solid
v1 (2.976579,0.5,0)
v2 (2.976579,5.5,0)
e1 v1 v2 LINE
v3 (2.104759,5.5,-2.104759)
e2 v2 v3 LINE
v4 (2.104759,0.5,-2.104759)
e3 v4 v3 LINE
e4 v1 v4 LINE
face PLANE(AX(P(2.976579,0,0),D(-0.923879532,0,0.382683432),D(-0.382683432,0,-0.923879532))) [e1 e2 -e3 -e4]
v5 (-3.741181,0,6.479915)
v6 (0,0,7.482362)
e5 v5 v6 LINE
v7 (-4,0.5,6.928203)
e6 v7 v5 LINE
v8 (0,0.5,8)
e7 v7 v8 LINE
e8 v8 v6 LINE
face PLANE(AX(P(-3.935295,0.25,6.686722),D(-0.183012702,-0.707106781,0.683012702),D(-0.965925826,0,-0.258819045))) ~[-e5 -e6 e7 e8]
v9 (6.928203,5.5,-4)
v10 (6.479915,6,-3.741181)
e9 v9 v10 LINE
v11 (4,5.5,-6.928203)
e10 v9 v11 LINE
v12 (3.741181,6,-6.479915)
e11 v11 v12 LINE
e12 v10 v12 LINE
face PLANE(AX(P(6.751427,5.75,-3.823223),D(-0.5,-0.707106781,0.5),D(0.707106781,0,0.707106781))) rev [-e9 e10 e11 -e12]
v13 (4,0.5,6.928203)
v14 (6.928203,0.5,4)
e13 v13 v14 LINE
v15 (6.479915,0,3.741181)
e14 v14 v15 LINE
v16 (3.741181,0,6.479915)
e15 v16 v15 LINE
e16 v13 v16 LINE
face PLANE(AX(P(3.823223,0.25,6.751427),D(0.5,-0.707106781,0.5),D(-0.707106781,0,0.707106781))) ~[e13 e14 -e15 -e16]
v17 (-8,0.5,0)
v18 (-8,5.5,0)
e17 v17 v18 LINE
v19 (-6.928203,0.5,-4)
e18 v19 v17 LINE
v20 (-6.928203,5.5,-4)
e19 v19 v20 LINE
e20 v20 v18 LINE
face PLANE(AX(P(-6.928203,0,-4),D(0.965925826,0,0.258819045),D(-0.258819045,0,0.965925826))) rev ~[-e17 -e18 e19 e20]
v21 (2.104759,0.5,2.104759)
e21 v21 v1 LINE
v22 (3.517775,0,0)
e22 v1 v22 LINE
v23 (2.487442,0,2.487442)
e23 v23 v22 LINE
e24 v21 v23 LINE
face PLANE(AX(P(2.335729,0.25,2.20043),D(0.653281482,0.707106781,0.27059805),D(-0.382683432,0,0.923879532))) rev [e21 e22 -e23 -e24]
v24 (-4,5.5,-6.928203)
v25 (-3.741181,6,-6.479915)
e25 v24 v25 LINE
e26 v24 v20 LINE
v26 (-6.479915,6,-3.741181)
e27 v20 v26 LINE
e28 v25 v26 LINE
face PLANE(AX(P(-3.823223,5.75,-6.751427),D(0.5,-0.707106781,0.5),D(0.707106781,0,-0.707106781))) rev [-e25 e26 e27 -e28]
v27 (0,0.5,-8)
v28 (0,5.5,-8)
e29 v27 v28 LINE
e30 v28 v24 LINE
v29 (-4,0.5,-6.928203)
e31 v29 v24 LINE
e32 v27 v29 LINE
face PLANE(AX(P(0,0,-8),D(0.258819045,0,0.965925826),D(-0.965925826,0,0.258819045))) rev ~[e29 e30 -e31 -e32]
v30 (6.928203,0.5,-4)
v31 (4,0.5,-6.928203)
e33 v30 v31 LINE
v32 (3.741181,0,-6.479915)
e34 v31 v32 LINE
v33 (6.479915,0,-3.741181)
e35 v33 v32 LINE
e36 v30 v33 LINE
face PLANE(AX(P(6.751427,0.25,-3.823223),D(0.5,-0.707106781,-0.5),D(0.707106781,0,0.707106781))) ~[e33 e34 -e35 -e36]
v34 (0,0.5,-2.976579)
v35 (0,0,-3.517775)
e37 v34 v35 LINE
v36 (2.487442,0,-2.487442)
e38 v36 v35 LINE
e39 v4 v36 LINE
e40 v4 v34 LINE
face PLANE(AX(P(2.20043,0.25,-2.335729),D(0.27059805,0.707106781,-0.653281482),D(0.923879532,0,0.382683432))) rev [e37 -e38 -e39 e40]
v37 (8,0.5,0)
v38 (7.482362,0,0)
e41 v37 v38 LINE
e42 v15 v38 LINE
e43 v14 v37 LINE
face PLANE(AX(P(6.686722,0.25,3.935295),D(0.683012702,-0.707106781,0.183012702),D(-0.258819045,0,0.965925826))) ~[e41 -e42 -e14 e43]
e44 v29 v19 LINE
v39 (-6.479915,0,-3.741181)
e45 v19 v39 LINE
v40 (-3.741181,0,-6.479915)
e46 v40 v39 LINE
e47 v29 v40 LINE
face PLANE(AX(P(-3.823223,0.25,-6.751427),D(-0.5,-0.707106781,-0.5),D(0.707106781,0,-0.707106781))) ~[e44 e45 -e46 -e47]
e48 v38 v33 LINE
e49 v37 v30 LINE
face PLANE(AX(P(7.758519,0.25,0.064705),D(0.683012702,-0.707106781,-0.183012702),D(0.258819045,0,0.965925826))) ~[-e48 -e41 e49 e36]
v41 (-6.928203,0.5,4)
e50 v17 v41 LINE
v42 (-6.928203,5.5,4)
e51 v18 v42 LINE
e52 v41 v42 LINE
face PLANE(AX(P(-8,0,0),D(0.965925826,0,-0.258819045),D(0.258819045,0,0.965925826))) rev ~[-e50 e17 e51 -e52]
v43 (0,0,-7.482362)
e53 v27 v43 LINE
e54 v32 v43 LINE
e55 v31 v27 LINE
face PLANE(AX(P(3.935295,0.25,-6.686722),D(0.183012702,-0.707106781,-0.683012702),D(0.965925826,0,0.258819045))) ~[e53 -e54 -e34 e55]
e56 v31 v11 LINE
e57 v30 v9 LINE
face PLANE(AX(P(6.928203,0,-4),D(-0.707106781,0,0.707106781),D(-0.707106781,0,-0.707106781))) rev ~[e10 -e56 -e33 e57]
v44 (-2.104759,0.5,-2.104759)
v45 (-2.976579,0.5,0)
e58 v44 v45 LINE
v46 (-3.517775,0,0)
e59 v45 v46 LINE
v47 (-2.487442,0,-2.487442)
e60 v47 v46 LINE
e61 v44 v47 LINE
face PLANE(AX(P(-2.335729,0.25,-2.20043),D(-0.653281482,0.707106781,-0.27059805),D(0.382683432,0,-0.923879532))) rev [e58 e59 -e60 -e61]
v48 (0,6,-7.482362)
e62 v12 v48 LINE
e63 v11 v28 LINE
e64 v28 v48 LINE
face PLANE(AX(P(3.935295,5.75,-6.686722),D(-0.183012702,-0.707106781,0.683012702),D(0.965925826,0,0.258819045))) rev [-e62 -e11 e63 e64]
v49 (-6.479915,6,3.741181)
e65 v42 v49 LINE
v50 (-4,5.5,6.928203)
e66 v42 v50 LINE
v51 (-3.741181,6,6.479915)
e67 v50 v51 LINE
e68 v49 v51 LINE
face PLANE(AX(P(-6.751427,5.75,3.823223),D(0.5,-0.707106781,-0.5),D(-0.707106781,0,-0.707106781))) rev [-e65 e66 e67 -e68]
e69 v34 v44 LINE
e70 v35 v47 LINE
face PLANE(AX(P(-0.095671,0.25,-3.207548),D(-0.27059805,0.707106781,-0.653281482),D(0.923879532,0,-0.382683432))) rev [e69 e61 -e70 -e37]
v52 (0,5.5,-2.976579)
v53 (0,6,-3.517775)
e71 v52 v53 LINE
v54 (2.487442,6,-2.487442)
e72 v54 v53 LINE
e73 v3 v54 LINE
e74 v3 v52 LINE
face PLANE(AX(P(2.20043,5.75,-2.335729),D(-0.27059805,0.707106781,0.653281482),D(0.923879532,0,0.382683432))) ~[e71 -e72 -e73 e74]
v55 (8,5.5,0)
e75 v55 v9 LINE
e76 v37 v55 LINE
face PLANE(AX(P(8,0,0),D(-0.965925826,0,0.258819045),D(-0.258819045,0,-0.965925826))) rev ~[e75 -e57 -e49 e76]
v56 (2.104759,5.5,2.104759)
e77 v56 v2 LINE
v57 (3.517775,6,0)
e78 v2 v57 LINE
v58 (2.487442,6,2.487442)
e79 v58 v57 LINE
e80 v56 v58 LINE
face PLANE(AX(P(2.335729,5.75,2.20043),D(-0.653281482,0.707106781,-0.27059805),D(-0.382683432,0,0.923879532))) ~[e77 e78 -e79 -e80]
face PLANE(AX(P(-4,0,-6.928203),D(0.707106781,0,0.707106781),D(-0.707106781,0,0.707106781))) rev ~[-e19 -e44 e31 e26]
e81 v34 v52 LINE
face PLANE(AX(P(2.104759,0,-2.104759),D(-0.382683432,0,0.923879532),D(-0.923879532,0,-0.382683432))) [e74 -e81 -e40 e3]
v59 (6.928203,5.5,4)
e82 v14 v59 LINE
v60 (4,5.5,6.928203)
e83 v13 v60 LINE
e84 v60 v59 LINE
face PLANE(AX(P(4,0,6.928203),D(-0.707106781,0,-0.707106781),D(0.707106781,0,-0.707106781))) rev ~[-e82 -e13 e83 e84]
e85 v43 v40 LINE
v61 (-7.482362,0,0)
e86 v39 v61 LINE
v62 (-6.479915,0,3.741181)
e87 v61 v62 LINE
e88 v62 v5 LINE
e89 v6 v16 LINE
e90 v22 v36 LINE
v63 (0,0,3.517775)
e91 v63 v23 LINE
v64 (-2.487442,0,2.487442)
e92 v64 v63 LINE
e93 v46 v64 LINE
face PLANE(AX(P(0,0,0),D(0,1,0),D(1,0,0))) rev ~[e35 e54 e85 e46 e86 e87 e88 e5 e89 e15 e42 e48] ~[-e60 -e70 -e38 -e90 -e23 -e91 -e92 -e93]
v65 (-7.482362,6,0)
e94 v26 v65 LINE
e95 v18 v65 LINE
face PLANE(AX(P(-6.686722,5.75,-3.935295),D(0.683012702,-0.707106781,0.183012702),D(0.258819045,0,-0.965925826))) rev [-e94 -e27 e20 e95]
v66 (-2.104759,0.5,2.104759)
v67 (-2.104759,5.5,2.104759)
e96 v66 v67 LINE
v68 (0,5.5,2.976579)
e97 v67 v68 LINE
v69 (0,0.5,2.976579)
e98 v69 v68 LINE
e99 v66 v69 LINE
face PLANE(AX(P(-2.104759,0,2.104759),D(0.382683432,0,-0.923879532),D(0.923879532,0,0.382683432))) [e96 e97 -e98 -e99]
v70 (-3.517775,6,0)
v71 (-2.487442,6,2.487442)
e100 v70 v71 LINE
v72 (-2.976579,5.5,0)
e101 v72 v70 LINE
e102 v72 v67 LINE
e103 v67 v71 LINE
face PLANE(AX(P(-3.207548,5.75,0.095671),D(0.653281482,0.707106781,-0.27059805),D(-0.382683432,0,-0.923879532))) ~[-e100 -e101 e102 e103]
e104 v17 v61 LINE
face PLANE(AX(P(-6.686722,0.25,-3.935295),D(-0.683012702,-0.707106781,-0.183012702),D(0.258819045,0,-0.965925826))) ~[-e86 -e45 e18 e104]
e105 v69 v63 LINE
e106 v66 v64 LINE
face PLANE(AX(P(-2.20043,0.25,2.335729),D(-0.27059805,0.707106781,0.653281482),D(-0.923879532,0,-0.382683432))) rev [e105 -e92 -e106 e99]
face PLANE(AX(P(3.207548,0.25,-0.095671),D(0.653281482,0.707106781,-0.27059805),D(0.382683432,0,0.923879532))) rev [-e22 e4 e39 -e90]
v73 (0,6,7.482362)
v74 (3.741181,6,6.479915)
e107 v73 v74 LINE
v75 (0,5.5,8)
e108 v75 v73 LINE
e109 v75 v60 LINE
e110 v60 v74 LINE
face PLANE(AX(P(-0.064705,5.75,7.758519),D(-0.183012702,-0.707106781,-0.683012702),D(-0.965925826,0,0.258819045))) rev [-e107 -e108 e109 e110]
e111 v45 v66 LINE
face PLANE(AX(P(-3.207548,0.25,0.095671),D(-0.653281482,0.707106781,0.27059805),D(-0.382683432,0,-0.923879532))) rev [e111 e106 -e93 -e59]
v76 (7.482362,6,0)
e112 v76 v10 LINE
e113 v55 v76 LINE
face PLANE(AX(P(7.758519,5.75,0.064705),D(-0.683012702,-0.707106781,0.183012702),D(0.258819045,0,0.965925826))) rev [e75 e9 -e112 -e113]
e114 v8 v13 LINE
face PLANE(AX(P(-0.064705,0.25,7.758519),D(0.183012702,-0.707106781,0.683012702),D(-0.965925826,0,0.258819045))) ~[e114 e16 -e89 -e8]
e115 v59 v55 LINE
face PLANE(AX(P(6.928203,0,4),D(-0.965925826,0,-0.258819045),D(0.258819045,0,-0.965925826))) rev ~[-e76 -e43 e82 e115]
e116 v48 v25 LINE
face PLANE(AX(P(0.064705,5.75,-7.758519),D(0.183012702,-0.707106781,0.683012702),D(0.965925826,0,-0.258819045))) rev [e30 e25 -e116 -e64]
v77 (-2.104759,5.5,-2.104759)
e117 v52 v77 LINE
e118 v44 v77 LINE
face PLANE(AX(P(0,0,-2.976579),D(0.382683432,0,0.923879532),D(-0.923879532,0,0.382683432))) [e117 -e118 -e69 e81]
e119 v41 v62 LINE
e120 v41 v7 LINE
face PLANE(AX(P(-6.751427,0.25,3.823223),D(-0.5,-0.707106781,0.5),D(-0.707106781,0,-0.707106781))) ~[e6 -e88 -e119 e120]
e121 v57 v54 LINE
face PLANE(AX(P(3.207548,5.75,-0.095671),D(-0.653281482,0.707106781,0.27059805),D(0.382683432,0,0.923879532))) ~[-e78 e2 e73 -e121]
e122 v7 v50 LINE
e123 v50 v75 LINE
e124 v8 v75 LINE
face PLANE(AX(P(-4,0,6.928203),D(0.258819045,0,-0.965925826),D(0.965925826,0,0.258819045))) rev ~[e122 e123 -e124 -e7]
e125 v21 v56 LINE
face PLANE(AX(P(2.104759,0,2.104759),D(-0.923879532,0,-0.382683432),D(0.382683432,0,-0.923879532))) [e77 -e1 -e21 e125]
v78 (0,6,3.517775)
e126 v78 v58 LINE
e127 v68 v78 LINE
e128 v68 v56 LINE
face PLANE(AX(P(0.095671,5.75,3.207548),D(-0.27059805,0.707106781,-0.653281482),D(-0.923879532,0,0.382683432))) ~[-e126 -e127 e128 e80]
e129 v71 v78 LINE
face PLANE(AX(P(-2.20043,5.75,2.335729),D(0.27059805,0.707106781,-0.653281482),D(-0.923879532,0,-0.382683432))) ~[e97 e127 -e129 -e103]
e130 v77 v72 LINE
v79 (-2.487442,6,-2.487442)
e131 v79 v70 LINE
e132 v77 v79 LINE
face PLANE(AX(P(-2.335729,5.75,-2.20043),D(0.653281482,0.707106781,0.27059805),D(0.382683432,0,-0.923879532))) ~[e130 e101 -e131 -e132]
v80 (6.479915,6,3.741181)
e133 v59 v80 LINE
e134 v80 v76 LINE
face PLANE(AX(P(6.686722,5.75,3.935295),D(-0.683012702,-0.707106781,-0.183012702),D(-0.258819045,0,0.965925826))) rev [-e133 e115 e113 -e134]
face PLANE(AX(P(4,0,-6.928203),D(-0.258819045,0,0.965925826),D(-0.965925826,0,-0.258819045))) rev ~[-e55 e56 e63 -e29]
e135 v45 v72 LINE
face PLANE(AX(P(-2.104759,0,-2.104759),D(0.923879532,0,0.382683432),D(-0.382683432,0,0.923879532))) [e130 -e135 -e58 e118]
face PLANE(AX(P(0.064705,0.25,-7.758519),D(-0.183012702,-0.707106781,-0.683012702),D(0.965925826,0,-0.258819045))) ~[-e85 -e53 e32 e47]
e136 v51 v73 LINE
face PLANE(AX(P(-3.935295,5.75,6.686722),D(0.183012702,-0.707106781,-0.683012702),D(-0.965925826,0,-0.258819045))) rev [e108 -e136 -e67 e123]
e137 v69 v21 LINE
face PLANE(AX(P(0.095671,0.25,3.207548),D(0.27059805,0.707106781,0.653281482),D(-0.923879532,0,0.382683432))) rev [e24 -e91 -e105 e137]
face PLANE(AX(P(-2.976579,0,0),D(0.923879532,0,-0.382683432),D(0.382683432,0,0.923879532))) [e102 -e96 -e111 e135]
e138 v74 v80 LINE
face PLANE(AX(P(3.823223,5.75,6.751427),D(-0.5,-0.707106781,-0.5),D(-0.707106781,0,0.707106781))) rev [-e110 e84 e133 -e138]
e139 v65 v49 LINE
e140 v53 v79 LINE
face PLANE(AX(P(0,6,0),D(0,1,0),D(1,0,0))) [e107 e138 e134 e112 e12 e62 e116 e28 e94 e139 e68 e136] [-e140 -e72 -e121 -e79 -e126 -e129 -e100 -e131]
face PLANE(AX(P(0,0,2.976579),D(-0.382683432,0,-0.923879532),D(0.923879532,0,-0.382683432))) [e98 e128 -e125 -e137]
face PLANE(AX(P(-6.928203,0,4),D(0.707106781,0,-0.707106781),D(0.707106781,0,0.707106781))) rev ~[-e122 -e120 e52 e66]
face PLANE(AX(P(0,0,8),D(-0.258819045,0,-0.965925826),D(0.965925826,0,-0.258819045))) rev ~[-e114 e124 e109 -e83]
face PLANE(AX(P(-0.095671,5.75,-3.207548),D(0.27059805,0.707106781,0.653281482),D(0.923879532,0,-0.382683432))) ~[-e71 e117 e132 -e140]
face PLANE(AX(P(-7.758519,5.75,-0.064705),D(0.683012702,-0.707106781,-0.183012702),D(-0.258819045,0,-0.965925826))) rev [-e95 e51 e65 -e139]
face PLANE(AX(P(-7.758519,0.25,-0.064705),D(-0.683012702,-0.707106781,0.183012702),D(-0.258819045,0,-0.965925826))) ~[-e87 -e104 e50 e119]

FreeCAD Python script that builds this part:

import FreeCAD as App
import Part
import Sketcher

V = App.Vector
Q = App.Units.Quantity


def edges_at(feature, points):
    """Names of the edges that pass closest to the given points."""
    edges = feature.Shape.Edges
    near = lambda p: min(range(len(edges)), key=lambda i: edges[i].distToShape(Part.Vertex(*p))[0])
    return sorted({f"Edge{near(p) + 1}" for p in points})


def add_polygon(sketch, points):
    """Adds a closed chain of lines whose ends are joined by coincident constraints."""
    first, n = sketch.GeometryCount, len(points)
    for a, b in zip(points, points[1:] + points[:1]):
        sketch.addGeometry(Part.LineSegment(App.Vector(*a, 0), App.Vector(*b, 0)), False)
    for i in range(n):
        sketch.addConstraint(Sketcher.Constraint("Coincident", first + i, 2, first + (i + 1) % n, 1))

doc = App.newDocument("Part")
body = doc.addObject("PartDesign::Body", "Body")

sketch1 = body.newObject("Sketcher::SketchObject", "Sketch")
sketch1.AttachmentSupport = (doc.getObject("XZ_Plane"), [""])
sketch1.MapMode = "FlatFace"
add_polygon(sketch1, [(8, 0), (6.928203, -4), (4, -6.928203), (0, -8), (-4, -6.928203), (-6.928203, -4), (-8, 0), (-6.928203, 4), (-4, 6.928203), (0, 8), (4, 6.928203), (6.928203, 4)])
add_polygon(sketch1, [(2.104759, -2.104759), (2.976579, 0), (2.104759, 2.104759), (0, 2.976579), (-2.104759, 2.104759), (-2.976579, 0), (-2.104759, -2.104759), (0, -2.976579)])
sketch1.addConstraint([
    Sketcher.Constraint("Symmetric", 0, 2, 6, 2, -1, 1),
    Sketcher.Constraint("Symmetric", 1, 2, 7, 2, -1, 1),
    Sketcher.Constraint("Symmetric", 2, 2, 8, 2, -1, 1),
    Sketcher.Constraint("Symmetric", 3, 2, 9, 2, -1, 1),
    Sketcher.Constraint("Symmetric", 4, 2, 10, 2, -1, 1),
    Sketcher.Constraint("Symmetric", 5, 2, 11, 2, -1, 1),
    Sketcher.Constraint("Symmetric", 12, 2, 16, 2, -1, 1),
    Sketcher.Constraint("Symmetric", 13, 2, 17, 2, -1, 1),
    Sketcher.Constraint("Symmetric", 14, 2, 18, 2, -1, 1),
    Sketcher.Constraint("Symmetric", 15, 2, 19, 2, -1, 1),
    Sketcher.Constraint("Symmetric", 1, 2, 3, 2, -2),
    Sketcher.Constraint("Symmetric", 0, 2, 4, 2, -2),
    Sketcher.Constraint("Symmetric", 13, 2, 15, 2, -2),
    Sketcher.Constraint("PointOnObject", 2, 2, -2),
    Sketcher.Constraint("PointOnObject", 5, 2, -1),
    Sketcher.Constraint("PointOnObject", 12, 2, -1),
    Sketcher.Constraint("PointOnObject", 14, 2, -2),
    Sketcher.Constraint("Perpendicular", 0, 3),
    Sketcher.Constraint("Perpendicular", 1, 4),
    Sketcher.Constraint("Perpendicular", 12, 14),
    Sketcher.Constraint("Equal", 0, 1),
    Sketcher.Constraint("Equal", 1, 2),
    Sketcher.Constraint("Equal", 13, 14),
    Sketcher.Constraint("Angle", 0, Q("-105 deg")),
    Sketcher.Constraint("DistanceY", 0, 2, -1, 1, 4.0),
    Sketcher.Constraint("Angle", 12, Q("67.5 deg")),
    Sketcher.Constraint("DistanceX", -1, 1, 12, 2, 2.976579),
])
pad1 = body.newObject("PartDesign::Pad", "Pad")
pad1.Profile = sketch1
pad1.Length = 6
pad1.Reversed = True
doc.recompute()

chamfer = body.newObject("PartDesign::Chamfer", "Chamfer")
chamfer.Base = (pad1, edges_at(pad1, [
    (5.464, 6, -5.464),
    (5.464, 0, 5.464),
    (2, 0, 7.464),
    (-2, 0, 7.464),
    (-5.464, 0, 5.464),
    (-7.464, 0, 2),
    (-7.464, 0, -2),
    (2, 6, -7.464),
    (-5.464, 0, -5.464),
    (-2, 0, -7.464),
    (2, 0, -7.464),
    (5.464, 0, -5.464),
    (7.464, 0, -2),
    (7.464, 0, 2),
    (-2, 6, -7.464),
    (-5.464, 6, -5.464),
    (-7.464, 6, -2),
    (-7.464, 6, 2),
    (-5.464, 6, 5.464),
    (-2, 6, 7.464),
    (2, 6, 7.464),
    (2.541, 0, 1.052),
    (2.541, 0, -1.052),
    (1.052, 0, -2.541),
    (-1.052, 0, -2.541),
    (5.464, 6, 5.464),
    (-2.541, 0, -1.052),
    (-2.541, 0, 1.052),
    (-1.052, 0, 2.541),
    (1.052, 0, 2.541),
    (2.541, 6, 1.052),
    (2.541, 6, -1.052),
    (1.052, 6, -2.541),
    (-1.052, 6, -2.541),
    (7.464, 6, 2),
    (-2.541, 6, -1.052),
    (-2.541, 6, 1.052),
    (-1.052, 6, 2.541),
    (1.052, 6, 2.541),
    (7.464, 6, -2),
]))
chamfer.Size = 0.5

doc.recompute()
